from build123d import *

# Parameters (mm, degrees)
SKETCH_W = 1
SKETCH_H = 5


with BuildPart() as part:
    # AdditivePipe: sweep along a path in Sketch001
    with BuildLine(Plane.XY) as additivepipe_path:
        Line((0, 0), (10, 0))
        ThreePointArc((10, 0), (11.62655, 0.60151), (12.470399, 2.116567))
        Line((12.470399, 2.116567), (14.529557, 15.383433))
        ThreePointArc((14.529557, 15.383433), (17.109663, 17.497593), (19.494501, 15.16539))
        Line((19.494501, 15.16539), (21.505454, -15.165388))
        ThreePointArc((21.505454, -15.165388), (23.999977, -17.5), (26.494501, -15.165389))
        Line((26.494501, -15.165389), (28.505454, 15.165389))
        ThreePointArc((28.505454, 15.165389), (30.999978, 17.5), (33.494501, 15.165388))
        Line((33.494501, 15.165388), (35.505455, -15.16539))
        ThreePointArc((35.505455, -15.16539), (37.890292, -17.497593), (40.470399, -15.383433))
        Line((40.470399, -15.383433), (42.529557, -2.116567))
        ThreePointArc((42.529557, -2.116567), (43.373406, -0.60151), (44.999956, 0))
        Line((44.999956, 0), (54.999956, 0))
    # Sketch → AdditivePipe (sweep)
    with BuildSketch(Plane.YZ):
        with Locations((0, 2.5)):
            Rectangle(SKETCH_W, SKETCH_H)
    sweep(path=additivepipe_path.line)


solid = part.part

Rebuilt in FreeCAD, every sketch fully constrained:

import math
import FreeCAD as App
import Part
import Sketcher
Q = App.Units.Quantity

doc = App.newDocument("Part")
params = doc.addObject("Spreadsheet::Sheet", "Params")
for row, (alias, value) in enumerate([
    ("sketch1_width", "1 mm"),
    ("sketch1_height", "5 mm"),
    ("sketch2_radius", "2.5 mm"),
    ("sketch2_width", "10 mm"),
], start=1):
    params.set(f"A{row}", alias)
    params.set(f"B{row}", "=" + value)
    params.setAlias(f"B{row}", alias)

body = doc.addObject("PartDesign::Body", "Body")

# Sketch on YZ plane
sketch1 = body.newObject("Sketcher::SketchObject", "Sketch")
sketch1.AttachmentSupport = (doc.getObject("YZ_Plane"), [""])
sketch1.MapMode = "FlatFace"
sketch1.addGeometry(Part.LineSegment(App.Vector(-0.5, 5, 0), App.Vector(-0.5, 0, 0)), False)
sketch1.addGeometry(Part.LineSegment(App.Vector(-0.5, 0, 0), App.Vector(0.5, 0, 0)), False)
sketch1.addGeometry(Part.LineSegment(App.Vector(0.5, 0, 0), App.Vector(0.5, 5, 0)), False)
sketch1.addGeometry(Part.LineSegment(App.Vector(0.5, 5, 0), App.Vector(-0.5, 5, 0)), False)
sketch1.addConstraint(Sketcher.Constraint("Coincident", 0, 2, 1, 1))
sketch1.addConstraint(Sketcher.Constraint("Coincident", 1, 2, 2, 1))
sketch1.addConstraint(Sketcher.Constraint("Coincident", 2, 2, 3, 1))
sketch1.addConstraint(Sketcher.Constraint("Coincident", 3, 2, 0, 1))
sketch1.addConstraint(Sketcher.Constraint("Vertical", 0))
sketch1.addConstraint(Sketcher.Constraint("Horizontal", 1))
sketch1.addConstraint(Sketcher.Constraint("Vertical", 2))
sketch1.addConstraint(Sketcher.Constraint("Horizontal", 3))
sketch1.addConstraint(Sketcher.Constraint("Symmetric", 0, 2, 1, 2, -1, 1))
sketch1.addConstraint(Sketcher.Constraint("DistanceX", 1, 1, 1, 2, Q("1 mm")))
sketch1.addConstraint(Sketcher.Constraint("DistanceY", 0, 2, 0, 1, Q("5 mm")))
sketch1.setExpression("Constraints[9]", "Params.sketch1_width")
sketch1.setExpression("Constraints[10]", "Params.sketch1_height")

# Sketch on XY plane
sketch2 = body.newObject("Sketcher::SketchObject", "Sketch001")
sketch2.AttachmentSupport = (doc.getObject("XY_Plane"), [""])
sketch2.MapMode = "FlatFace"
sketch2.addGeometry(Part.LineSegment(App.Vector(0, 0, 0), App.Vector(10, 0, 0)), False)
sketch2.addGeometry(Part.ArcOfCircle(Part.Circle(App.Vector(10, 2.5, 0), App.Vector(0, 0, 1), 2.5), math.radians(-90), math.radians(-9)), False)
sketch2.addGeometry(Part.LineSegment(App.Vector(12.5, 2.1, 0), App.Vector(14.5, 15.4, 0)), False)
sketch2.addGeometry(Part.ArcOfCircle(Part.Circle(App.Vector(17, 15, 0), App.Vector(0, 0, 1), 2.5), math.radians(4), math.radians(171)), False)
sketch2.addGeometry(Part.LineSegment(App.Vector(19.5, 15.2, 0), App.Vector(21.5, -15.2, 0)), False)
sketch2.addGeometry(Part.ArcOfCircle(Part.Circle(App.Vector(24, -15, 0), App.Vector(0, 0, 1), 2.5), math.radians(-176), math.radians(-4)), False)
sketch2.addGeometry(Part.LineSegment(App.Vector(26.5, -15.2, 0), App.Vector(28.5, 15.2, 0)), False)
sketch2.addGeometry(Part.ArcOfCircle(Part.Circle(App.Vector(31, 15, 0), App.Vector(0, 0, 1), 2.5), math.radians(4), math.radians(176)), False)
sketch2.addGeometry(Part.LineSegment(App.Vector(33.5, 15.2, 0), App.Vector(35.5, -15.2, 0)), False)
sketch2.addGeometry(Part.ArcOfCircle(Part.Circle(App.Vector(38, -15, 0), App.Vector(0, 0, 1), 2.5), math.radians(-176), math.radians(-9)), False)
sketch2.addGeometry(Part.LineSegment(App.Vector(40.5, -15.4, 0), App.Vector(42.5, -2.1, 0)), False)
sketch2.addGeometry(Part.ArcOfCircle(Part.Circle(App.Vector(45, -2.5, 0), App.Vector(0, 0, 1), 2.5), math.radians(90), math.radians(171)), False)
sketch2.addGeometry(Part.LineSegment(App.Vector(45, 0, 0), App.Vector(55, 0, 0)), False)
sketch2.addConstraint(Sketcher.Constraint("Coincident", 0, 2, 1, 1))
sketch2.addConstraint(Sketcher.Constraint("Tangent", 1, 2, 2, 1))
sketch2.addConstraint(Sketcher.Constraint("Tangent", 2, 2, 3, 2))
sketch2.addConstraint(Sketcher.Constraint("Tangent", 3, 1, 4, 1))
sketch2.addConstraint(Sketcher.Constraint("Tangent", 4, 2, 5, 1))
sketch2.addConstraint(Sketcher.Constraint("Tangent", 5, 2, 6, 1))
sketch2.addConstraint(Sketcher.Constraint("Tangent", 6, 2, 7, 2))
sketch2.addConstraint(Sketcher.Constraint("Tangent", 7, 1, 8, 1))
sketch2.addConstraint(Sketcher.Constraint("Tangent", 8, 2, 9, 1))
sketch2.addConstraint(Sketcher.Constraint("Tangent", 9, 2, 10, 1))
sketch2.addConstraint(Sketcher.Constraint("Tangent", 10, 2, 11, 2))
sketch2.addConstraint(Sketcher.Constraint("Coincident", 11, 1, 12, 1))
sketch2.addConstraint(Sketcher.Constraint("Horizontal", 0))
sketch2.addConstraint(Sketcher.Constraint("Horizontal", 12))
sketch2.addConstraint(Sketcher.Constraint("Coincident", 0, 1, -1, 1))
sketch2.addConstraint(Sketcher.Constraint("Equal", 1, 3))
sketch2.addConstraint(Sketcher.Constraint("Equal", 3, 5))
sketch2.addConstraint(Sketcher.Constraint("Equal", 5, 7))
sketch2.addConstraint(Sketcher.Constraint("Equal", 7, 9))
sketch2.addConstraint(Sketcher.Constraint("Equal", 9, 11))
sketch2.addConstraint(Sketcher.Constraint("PointOnObject", 11, 1, -1))
sketch2.addConstraint(Sketcher.Constraint("Parallel", 4, 8))
sketch2.addConstraint(Sketcher.Constraint("Parallel", 2, 10))
sketch2.addConstraint(Sketcher.Constraint("Horizontal", 3, 3, 7, 3))
sketch2.addConstraint(Sketcher.Constraint("Horizontal", 5, 3, 9, 3))
sketch2.addConstraint(Sketcher.Constraint("Horizontal", 4, 2, 5, 2))
sketch2.addConstraint(Sketcher.Constraint("Equal", 0, 12))
sketch2.addConstraint(Sketcher.Constraint("Equal", 2, 10))
sketch2.addConstraint(Sketcher.Constraint("Radius", 1, Q("2.5 mm")))
sketch2.addConstraint(Sketcher.Constraint("DistanceX", 0, 1, 0, 2, Q("10 mm")))
sketch2.addConstraint(Sketcher.Constraint("DistanceY", -1, 1, 3, 3, Q("15 mm")))
sketch2.addConstraint(Sketcher.Constraint("DistanceX", 1, 3, 3, 3, Q("7 mm")))
sketch2.addConstraint(Sketcher.Constraint("DistanceX", 1, 3, 5, 3, Q("13.999999 mm")))
sketch2.addConstraint(Sketcher.Constraint("DistanceX", -1, 1, 1, 2, Q("12.470399 mm")))
sketch2.addConstraint(Sketcher.Constraint("DistanceX", 10, 2, 11, 1, Q("2.470399 mm")))
sketch2.setExpression("Constraints[28]", "Params.sketch2_radius")
sketch2.setExpression("Constraints[29]", "Params.sketch2_width")
doc.recompute()

additivepipe = body.newObject("PartDesign::AdditivePipe", "AdditivePipe")
additivepipe.Profile = sketch1
additivepipe.Spine = (sketch2, ["Edge1", "Edge2", "Edge3", "Edge4", "Edge5", "Edge6", "Edge7", "Edge8", "Edge9", "Edge10", "Edge11", "Edge12", "Edge13"])

doc.recompute()
